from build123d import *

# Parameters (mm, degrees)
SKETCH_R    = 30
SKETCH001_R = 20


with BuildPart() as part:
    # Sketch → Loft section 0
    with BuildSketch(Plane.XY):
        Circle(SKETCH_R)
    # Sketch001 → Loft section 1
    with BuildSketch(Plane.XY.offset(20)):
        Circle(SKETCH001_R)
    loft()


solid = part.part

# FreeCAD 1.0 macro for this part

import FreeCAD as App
import Part
import Sketcher
from FreeCAD import Vector

doc = App.newDocument("Part")
body = doc.addObject("PartDesign::Body", "Body")

# Sketch on XY plane
sketch1 = body.newObject("Sketcher::SketchObject", "Sketch")
sketch1.AttachmentSupport = (doc.getObject("XY_Plane"), [""])
sketch1.MapMode = "FlatFace"
sketch1.addGeometry(Part.Circle(Vector(0, 0, 0), Vector(0, 0, 1), 30), False)
sketch1.addConstraint(Sketcher.Constraint("Coincident", 0, 3, -1, 1))
sketch1.addConstraint(Sketcher.Constraint("Diameter", 0, 60.0))

# Sketch on XY plane
sketch2 = body.newObject("Sketcher::SketchObject", "Sketch001")
sketch2.AttachmentSupport = (doc.getObject("XY_Plane"), [""])
sketch2.MapMode = "FlatFace"
sketch2.AttachmentOffset = App.Placement(Vector(0, 0, 20), App.Rotation())
sketch2.addGeometry(Part.Circle(Vector(0, 0, 0), Vector(0, 0, 1), 20), False)
sketch2.addConstraint(Sketcher.Constraint("Coincident", 0, 3, -1, 1))
sketch2.addConstraint(Sketcher.Constraint("Diameter", 0, 40.0))

additiveloft = body.newObject("PartDesign::AdditiveLoft", "AdditiveLoft")
additiveloft.Profile = sketch1
additiveloft.Sections = [sketch2]

doc.recompute()
